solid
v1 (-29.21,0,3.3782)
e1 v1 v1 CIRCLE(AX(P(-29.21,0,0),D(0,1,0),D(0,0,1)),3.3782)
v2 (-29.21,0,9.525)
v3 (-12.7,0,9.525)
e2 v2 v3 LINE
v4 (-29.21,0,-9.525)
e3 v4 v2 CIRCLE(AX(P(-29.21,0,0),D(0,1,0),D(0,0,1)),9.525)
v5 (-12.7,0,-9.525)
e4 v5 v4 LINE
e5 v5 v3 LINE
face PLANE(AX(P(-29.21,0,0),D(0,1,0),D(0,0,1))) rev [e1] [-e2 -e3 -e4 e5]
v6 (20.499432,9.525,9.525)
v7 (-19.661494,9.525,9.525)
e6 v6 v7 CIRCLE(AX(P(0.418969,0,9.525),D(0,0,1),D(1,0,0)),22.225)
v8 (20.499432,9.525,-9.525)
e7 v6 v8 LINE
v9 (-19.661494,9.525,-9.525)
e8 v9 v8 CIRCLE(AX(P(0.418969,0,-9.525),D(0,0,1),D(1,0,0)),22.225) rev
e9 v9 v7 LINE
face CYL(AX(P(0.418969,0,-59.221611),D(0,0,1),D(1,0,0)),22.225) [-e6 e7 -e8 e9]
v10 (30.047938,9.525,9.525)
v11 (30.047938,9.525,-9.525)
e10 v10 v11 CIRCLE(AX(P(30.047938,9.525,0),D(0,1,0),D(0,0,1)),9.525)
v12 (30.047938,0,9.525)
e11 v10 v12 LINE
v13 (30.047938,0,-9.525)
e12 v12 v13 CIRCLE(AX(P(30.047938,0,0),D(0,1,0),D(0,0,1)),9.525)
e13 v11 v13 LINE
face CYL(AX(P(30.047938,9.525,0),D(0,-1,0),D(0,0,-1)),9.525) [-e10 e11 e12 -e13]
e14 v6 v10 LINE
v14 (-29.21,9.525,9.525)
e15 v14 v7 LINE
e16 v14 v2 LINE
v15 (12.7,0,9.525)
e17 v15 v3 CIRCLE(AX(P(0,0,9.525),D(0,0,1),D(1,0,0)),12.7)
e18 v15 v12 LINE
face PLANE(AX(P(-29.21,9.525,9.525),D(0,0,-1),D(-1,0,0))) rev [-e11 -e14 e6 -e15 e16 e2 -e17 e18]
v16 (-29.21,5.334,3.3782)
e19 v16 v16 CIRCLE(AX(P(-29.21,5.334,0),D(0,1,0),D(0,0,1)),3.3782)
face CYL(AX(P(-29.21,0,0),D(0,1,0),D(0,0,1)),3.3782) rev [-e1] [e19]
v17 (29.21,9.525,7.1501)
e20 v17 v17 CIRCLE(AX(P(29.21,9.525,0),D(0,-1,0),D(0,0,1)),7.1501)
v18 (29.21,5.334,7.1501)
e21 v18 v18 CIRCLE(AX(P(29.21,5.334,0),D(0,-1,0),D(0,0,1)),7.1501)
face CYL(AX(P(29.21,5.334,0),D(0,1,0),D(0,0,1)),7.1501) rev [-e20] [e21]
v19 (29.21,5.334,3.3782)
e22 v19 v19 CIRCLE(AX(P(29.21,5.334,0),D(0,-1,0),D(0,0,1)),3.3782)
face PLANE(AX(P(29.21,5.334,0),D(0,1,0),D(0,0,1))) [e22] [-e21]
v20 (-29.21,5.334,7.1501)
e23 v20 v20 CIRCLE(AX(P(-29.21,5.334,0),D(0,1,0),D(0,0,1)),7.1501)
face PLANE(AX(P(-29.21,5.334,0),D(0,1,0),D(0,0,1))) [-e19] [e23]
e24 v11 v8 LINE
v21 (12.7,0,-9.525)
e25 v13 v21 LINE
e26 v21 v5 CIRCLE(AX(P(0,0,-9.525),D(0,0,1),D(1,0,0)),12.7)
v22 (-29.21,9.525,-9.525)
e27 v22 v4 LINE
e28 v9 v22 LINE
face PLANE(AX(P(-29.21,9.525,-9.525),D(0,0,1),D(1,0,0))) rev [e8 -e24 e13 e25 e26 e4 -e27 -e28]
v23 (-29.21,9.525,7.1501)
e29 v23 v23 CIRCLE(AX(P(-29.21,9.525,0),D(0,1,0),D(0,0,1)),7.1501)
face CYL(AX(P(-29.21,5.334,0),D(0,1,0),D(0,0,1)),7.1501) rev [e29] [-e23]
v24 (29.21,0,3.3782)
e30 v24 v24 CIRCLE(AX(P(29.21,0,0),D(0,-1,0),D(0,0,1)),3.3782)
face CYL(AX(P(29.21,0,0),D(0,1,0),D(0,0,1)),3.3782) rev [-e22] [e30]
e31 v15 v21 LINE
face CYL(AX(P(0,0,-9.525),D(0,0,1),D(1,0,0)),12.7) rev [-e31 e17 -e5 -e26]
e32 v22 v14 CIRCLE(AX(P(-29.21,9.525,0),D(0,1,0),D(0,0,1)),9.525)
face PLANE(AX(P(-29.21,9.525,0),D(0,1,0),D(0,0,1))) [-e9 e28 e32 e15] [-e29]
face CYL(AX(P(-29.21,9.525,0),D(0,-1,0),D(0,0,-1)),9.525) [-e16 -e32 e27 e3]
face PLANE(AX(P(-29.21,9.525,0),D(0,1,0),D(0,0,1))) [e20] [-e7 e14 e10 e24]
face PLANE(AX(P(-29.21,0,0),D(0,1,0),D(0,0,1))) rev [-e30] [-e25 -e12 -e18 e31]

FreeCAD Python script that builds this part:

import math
import FreeCAD as App
import Part
import Sketcher

V = App.Vector
Q = App.Units.Quantity

doc = App.newDocument("Part")
body = doc.addObject("PartDesign::Body", "Body")

sketch1 = body.newObject("Sketcher::SketchObject", "Sketch")
sketch1.AttachmentSupport = (doc.getObject("XZ_Plane"), [""])
sketch1.MapMode = "FlatFace"
sketch1.addGeometry([
    Part.LineSegment(V(30, -10, 0), V(-29, -10, 0)),
    Part.ArcOfCircle(Part.Circle(V(-29, 0, 0), V(0, 0, 1), 10), math.radians(90), math.radians(270)),
    Part.LineSegment(V(-29, 10, 0), V(30, 10, 0)),
    Part.ArcOfCircle(Part.Circle(V(30, 0, 0), V(0, 0, 1), 10), math.radians(-90), math.radians(90)),
], False)
sketch1.addConstraint([
    Sketcher.Constraint("Tangent", 0, 2, 1, 2),
    Sketcher.Constraint("Tangent", 1, 1, 2, 1),
    Sketcher.Constraint("Tangent", 2, 2, 3, 2),
    Sketcher.Constraint("Tangent", 3, 1, 0, 1),
    Sketcher.Constraint("Horizontal", 0),
    Sketcher.Constraint("Horizontal", 2),
    Sketcher.Constraint("PointOnObject", 1, 3, -1),
    Sketcher.Constraint("Radius", 1, Q("0.375 in")),
    Sketcher.Constraint("DistanceX", 1, 3, -1, 1, Q("1.15 in")),
    Sketcher.Constraint("DistanceX", 0, 2, 0, 1, 59.257938),
])
pad1 = body.newObject("PartDesign::Pad", "Pad")
pad1.Profile = sketch1
pad1.Length = Q("0.375 in")
pad1.Reversed = True

sketch2 = body.newObject("Sketcher::SketchObject", "Sketch001")
sketch2.AttachmentSupport = (doc.getObject("XY_Plane"), [""])
sketch2.MapMode = "FlatFace"
sketch2.AttachmentOffset = App.Placement(V(0, 0, 0.375 * 25.4), App.Rotation())
sketch2.addGeometry([
    Part.LineSegment(V(-22, 0, 0), V(23, 0, 0)),
    Part.ArcOfCircle(Part.Circle(V(0, 0, 0), V(0, 0, 1), 22), math.radians(0), math.radians(25)),
    Part.ArcOfCircle(Part.Circle(V(0, 0, 0), V(0, 0, 1), 22), math.radians(25), math.radians(155)),
    Part.ArcOfCircle(Part.Circle(V(0, 0, 0), V(0, 0, 1), 22), math.radians(155), math.radians(180)),
], False)
sketch2.addConstraint([
    Sketcher.Constraint("Coincident", 0, 2, 1, 1),
    Sketcher.Constraint("Tangent", 1, 2, 2, 1),
    Sketcher.Constraint("Tangent", 2, 2, 3, 1),
    Sketcher.Constraint("Coincident", 3, 2, 0, 1),
    Sketcher.Constraint("Horizontal", 0),
    Sketcher.Constraint("Coincident", 3, 3, 1, 3),
    Sketcher.Constraint("PointOnObject", 1, 3, -1),
    Sketcher.Constraint("PointOnObject", 0, 2, -1),
    Sketcher.Constraint("Horizontal", 1, 2, 2, 2),
    Sketcher.Constraint("Radius", 1, Q("0.875 in")),
    Sketcher.Constraint("DistanceY", -1, 1, 1, 2, Q("0.375 in")),
    Sketcher.Constraint("DistanceX", -1, 1, 1, 3, 0.418969),
])
pad2 = body.newObject("PartDesign::Pad", "Pad001")
pad2.Profile = sketch2
pad2.Length = Q("0.75 in")
pad2.Reversed = True

sketch3 = body.newObject("Sketcher::SketchObject", "Sketch002")
sketch3.AttachmentSupport = (doc.getObject("XY_Plane"), [""])
sketch3.MapMode = "FlatFace"
sketch3.AttachmentOffset = App.Placement(V(0, 0, 0.375 * 25.4), App.Rotation())
sketch3.addGeometry(Part.Circle(V(0, 0, 0), V(0, 0, 1), 13), False)
sketch3.addConstraint([
    Sketcher.Constraint("Coincident", 0, 3, -1, 1),
    Sketcher.Constraint("Diameter", 0, Q("1 in")),
])
pocket1 = body.newObject("PartDesign::Pocket", "Pocket")
pocket1.Profile = sketch3
pocket1.Type = "ThroughAll"

sketch4 = body.newObject("Sketcher::SketchObject", "Sketch003")
sketch4.AttachmentSupport = (doc.getObject("XZ_Plane"), [""])
sketch4.MapMode = "FlatFace"
sketch4.AttachmentOffset = App.Placement(V(0, 0, -0.375 * 25.4), App.Rotation())
sketch4.addGeometry(Part.Circle(V(-29, 0, 0), V(0, 0, 1), 7), False)
sketch4.addConstraint([
    Sketcher.Constraint("PointOnObject", 0, 3, -1),
    Sketcher.Constraint("Diameter", 0, Q("0.563 in")),
    Sketcher.Constraint("DistanceX", 0, 3, -1, 1, Q("1.15 in")),
])
pocket2 = body.newObject("PartDesign::Pocket", "Pocket001")
pocket2.Profile = sketch4
pocket2.Length = Q("0.165 in")
pocket2.Reversed = True

sketch5 = body.newObject("Sketcher::SketchObject", "Sketch004")
sketch5.AttachmentSupport = (doc.getObject("XZ_Plane"), [""])
sketch5.MapMode = "FlatFace"
sketch5.AttachmentOffset = App.Placement(V(0, 0, -0.21 * 25.4), App.Rotation())
sketch5.addGeometry(Part.Circle(V(-29.2, 0, 0), V(0, 0, 1), 3.4), False)
sketch5.addConstraint([
    Sketcher.Constraint("PointOnObject", 0, 3, -1),
    Sketcher.Constraint("Diameter", 0, Q("0.266 in")),
    Sketcher.Constraint("DistanceX", 0, 3, -1, 1, Q("1.15 in")),
])
pocket3 = body.newObject("PartDesign::Pocket", "Pocket002")
pocket3.Profile = sketch5
pocket3.Type = "ThroughAll"
pocket3.Reversed = True
doc.recompute()

mirrored = body.newObject("PartDesign::Mirrored", "Mirrored")
mirrored.Originals = [pocket2, pocket3]
mirrored.MirrorPlane = (doc.getObject("YZ_Plane"), [""])
body.Tip = mirrored

doc.recompute()
